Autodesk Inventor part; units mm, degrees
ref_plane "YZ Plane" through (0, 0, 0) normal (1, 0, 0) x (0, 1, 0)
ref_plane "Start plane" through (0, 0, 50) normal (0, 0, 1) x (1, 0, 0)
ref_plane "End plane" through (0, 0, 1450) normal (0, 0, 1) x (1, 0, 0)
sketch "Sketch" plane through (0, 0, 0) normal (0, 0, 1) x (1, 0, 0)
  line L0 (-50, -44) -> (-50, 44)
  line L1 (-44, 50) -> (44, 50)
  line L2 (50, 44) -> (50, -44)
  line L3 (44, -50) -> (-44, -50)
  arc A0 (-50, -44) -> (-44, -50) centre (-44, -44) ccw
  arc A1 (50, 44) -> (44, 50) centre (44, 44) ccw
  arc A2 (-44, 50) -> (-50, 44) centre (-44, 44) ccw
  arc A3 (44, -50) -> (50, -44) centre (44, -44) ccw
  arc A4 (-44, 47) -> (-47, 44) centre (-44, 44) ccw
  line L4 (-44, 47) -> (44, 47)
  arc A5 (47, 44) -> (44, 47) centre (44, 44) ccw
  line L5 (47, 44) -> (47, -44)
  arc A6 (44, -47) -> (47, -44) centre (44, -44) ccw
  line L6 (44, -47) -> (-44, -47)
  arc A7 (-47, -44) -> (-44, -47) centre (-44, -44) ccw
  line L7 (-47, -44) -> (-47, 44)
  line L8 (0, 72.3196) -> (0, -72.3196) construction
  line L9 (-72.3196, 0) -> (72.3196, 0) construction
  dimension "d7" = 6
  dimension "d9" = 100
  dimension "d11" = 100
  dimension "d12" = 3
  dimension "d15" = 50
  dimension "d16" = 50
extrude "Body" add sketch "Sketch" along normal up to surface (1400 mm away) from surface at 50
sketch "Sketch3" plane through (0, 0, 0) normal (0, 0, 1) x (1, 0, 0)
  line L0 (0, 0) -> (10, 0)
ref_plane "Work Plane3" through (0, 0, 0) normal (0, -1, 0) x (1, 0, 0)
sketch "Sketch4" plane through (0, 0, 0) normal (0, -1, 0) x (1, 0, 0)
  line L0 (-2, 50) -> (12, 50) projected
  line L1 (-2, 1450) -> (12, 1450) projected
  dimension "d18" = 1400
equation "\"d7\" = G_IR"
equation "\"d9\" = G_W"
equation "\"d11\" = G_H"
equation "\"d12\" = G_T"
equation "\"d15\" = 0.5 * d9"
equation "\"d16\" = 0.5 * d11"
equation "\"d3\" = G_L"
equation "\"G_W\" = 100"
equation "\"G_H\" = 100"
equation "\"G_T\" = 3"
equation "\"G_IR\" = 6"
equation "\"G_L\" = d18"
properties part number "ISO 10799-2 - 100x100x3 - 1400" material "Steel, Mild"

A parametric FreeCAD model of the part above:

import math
import FreeCAD as App
import Part
import Sketcher
from FreeCAD import Vector

doc = App.newDocument("Part")
body = doc.addObject("PartDesign::Body", "Body")

# Sketch on XY plane
sketch1 = doc.addObject("Sketcher::SketchObject", "Sketch")
body.addObject(sketch1)
sketch1.AttachmentSupport = (doc.XY_Plane, [""])
sketch1.MapMode = "FlatFace"
sketch1.AttachmentOffset = App.Placement(Vector(0, 0, 50), App.Rotation())
sketch1.addGeometry([
    Part.LineSegment(Vector(-50, 44, 0), Vector(-50, -44, 0)),  # 0
    Part.ArcOfCircle(Part.Circle(Vector(-44, -44, 0), Vector(0, 0, 1), 6), math.radians(180), math.radians(270)),  # 1
    Part.LineSegment(Vector(-44, -50, 0), Vector(44, -50, 0)),  # 2
    Part.ArcOfCircle(Part.Circle(Vector(44, -44, 0), Vector(0, 0, 1), 6), math.radians(-90), math.radians(0)),  # 3
    Part.LineSegment(Vector(50, -44, 0), Vector(50, 44, 0)),  # 4
    Part.ArcOfCircle(Part.Circle(Vector(44, 44, 0), Vector(0, 0, 1), 6), math.radians(0), math.radians(90)),  # 5
    Part.LineSegment(Vector(44, 50, 0), Vector(-44, 50, 0)),  # 6
    Part.ArcOfCircle(Part.Circle(Vector(-44, 44, 0), Vector(0, 0, 1), 6), math.radians(90), math.radians(180)),  # 7
    Part.ArcOfCircle(Part.Circle(Vector(-44, 44, 0), Vector(0, 0, 1), 3), math.radians(90), math.radians(180)),  # 8
    Part.LineSegment(Vector(-44, 47, 0), Vector(44, 47, 0)),  # 9
    Part.ArcOfCircle(Part.Circle(Vector(44, 44, 0), Vector(0, 0, 1), 3), math.radians(0), math.radians(90)),  # 10
    Part.LineSegment(Vector(47, 44, 0), Vector(47, -44, 0)),  # 11
    Part.ArcOfCircle(Part.Circle(Vector(44, -44, 0), Vector(0, 0, 1), 3), math.radians(-90), math.radians(0)),  # 12
    Part.LineSegment(Vector(44, -47, 0), Vector(-44, -47, 0)),  # 13
    Part.ArcOfCircle(Part.Circle(Vector(-44, -44, 0), Vector(0, 0, 1), 3), math.radians(180), math.radians(270)),  # 14
    Part.LineSegment(Vector(-47, -44, 0), Vector(-47, 44, 0)),  # 15
], False)
sketch1.addConstraint([
    Sketcher.Constraint("Tangent", 0, 2, 1, 1),
    Sketcher.Constraint("Tangent", 1, 2, 2, 1),
    Sketcher.Constraint("Tangent", 2, 2, 3, 1),
    Sketcher.Constraint("Tangent", 3, 2, 4, 1),
    Sketcher.Constraint("Tangent", 4, 2, 5, 1),
    Sketcher.Constraint("Tangent", 5, 2, 6, 1),
    Sketcher.Constraint("Tangent", 6, 2, 7, 1),
    Sketcher.Constraint("Tangent", 7, 2, 0, 1),
    Sketcher.Constraint("Tangent", 8, 1, 9, 1),
    Sketcher.Constraint("Tangent", 9, 2, 10, 2),
    Sketcher.Constraint("Tangent", 10, 1, 11, 1),
    Sketcher.Constraint("Tangent", 11, 2, 12, 2),
    Sketcher.Constraint("Tangent", 12, 1, 13, 1),
    Sketcher.Constraint("Tangent", 13, 2, 14, 2),
    Sketcher.Constraint("Tangent", 14, 1, 15, 1),
    Sketcher.Constraint("Tangent", 15, 2, 8, 2),
    Sketcher.Constraint("Vertical", 0),
    Sketcher.Constraint("Horizontal", 2),
    Sketcher.Constraint("Vertical", 4),
    Sketcher.Constraint("Horizontal", 6),
    Sketcher.Constraint("Horizontal", 9),
    Sketcher.Constraint("Vertical", 11),
    Sketcher.Constraint("Horizontal", 13),
    Sketcher.Constraint("Vertical", 15),
    Sketcher.Constraint("Coincident", 8, 3, 7, 3),
    Sketcher.Constraint("Coincident", 10, 3, 5, 3),
    Sketcher.Constraint("Coincident", 12, 3, 3, 3),
    Sketcher.Constraint("Equal", 1, 3),
    Sketcher.Constraint("Equal", 3, 5),
    Sketcher.Constraint("Equal", 5, 7),
    Sketcher.Constraint("Equal", 12, 14),
    Sketcher.Constraint("Symmetric", 1, 3, 5, 3, -1, 1),
    Sketcher.Constraint("Equal", 13, 0),
    Sketcher.Constraint("Radius", 1, 6.0),
    Sketcher.Constraint("Radius", 8, 3.0),
    Sketcher.Constraint("DistanceX", 0, 2, -1, 1, 50.0),
])
pad1 = doc.addObject("PartDesign::Pad", "Pad")
body.addObject(pad1)
pad1.Profile = sketch1
pad1.Length = 1400

doc.recompute()
